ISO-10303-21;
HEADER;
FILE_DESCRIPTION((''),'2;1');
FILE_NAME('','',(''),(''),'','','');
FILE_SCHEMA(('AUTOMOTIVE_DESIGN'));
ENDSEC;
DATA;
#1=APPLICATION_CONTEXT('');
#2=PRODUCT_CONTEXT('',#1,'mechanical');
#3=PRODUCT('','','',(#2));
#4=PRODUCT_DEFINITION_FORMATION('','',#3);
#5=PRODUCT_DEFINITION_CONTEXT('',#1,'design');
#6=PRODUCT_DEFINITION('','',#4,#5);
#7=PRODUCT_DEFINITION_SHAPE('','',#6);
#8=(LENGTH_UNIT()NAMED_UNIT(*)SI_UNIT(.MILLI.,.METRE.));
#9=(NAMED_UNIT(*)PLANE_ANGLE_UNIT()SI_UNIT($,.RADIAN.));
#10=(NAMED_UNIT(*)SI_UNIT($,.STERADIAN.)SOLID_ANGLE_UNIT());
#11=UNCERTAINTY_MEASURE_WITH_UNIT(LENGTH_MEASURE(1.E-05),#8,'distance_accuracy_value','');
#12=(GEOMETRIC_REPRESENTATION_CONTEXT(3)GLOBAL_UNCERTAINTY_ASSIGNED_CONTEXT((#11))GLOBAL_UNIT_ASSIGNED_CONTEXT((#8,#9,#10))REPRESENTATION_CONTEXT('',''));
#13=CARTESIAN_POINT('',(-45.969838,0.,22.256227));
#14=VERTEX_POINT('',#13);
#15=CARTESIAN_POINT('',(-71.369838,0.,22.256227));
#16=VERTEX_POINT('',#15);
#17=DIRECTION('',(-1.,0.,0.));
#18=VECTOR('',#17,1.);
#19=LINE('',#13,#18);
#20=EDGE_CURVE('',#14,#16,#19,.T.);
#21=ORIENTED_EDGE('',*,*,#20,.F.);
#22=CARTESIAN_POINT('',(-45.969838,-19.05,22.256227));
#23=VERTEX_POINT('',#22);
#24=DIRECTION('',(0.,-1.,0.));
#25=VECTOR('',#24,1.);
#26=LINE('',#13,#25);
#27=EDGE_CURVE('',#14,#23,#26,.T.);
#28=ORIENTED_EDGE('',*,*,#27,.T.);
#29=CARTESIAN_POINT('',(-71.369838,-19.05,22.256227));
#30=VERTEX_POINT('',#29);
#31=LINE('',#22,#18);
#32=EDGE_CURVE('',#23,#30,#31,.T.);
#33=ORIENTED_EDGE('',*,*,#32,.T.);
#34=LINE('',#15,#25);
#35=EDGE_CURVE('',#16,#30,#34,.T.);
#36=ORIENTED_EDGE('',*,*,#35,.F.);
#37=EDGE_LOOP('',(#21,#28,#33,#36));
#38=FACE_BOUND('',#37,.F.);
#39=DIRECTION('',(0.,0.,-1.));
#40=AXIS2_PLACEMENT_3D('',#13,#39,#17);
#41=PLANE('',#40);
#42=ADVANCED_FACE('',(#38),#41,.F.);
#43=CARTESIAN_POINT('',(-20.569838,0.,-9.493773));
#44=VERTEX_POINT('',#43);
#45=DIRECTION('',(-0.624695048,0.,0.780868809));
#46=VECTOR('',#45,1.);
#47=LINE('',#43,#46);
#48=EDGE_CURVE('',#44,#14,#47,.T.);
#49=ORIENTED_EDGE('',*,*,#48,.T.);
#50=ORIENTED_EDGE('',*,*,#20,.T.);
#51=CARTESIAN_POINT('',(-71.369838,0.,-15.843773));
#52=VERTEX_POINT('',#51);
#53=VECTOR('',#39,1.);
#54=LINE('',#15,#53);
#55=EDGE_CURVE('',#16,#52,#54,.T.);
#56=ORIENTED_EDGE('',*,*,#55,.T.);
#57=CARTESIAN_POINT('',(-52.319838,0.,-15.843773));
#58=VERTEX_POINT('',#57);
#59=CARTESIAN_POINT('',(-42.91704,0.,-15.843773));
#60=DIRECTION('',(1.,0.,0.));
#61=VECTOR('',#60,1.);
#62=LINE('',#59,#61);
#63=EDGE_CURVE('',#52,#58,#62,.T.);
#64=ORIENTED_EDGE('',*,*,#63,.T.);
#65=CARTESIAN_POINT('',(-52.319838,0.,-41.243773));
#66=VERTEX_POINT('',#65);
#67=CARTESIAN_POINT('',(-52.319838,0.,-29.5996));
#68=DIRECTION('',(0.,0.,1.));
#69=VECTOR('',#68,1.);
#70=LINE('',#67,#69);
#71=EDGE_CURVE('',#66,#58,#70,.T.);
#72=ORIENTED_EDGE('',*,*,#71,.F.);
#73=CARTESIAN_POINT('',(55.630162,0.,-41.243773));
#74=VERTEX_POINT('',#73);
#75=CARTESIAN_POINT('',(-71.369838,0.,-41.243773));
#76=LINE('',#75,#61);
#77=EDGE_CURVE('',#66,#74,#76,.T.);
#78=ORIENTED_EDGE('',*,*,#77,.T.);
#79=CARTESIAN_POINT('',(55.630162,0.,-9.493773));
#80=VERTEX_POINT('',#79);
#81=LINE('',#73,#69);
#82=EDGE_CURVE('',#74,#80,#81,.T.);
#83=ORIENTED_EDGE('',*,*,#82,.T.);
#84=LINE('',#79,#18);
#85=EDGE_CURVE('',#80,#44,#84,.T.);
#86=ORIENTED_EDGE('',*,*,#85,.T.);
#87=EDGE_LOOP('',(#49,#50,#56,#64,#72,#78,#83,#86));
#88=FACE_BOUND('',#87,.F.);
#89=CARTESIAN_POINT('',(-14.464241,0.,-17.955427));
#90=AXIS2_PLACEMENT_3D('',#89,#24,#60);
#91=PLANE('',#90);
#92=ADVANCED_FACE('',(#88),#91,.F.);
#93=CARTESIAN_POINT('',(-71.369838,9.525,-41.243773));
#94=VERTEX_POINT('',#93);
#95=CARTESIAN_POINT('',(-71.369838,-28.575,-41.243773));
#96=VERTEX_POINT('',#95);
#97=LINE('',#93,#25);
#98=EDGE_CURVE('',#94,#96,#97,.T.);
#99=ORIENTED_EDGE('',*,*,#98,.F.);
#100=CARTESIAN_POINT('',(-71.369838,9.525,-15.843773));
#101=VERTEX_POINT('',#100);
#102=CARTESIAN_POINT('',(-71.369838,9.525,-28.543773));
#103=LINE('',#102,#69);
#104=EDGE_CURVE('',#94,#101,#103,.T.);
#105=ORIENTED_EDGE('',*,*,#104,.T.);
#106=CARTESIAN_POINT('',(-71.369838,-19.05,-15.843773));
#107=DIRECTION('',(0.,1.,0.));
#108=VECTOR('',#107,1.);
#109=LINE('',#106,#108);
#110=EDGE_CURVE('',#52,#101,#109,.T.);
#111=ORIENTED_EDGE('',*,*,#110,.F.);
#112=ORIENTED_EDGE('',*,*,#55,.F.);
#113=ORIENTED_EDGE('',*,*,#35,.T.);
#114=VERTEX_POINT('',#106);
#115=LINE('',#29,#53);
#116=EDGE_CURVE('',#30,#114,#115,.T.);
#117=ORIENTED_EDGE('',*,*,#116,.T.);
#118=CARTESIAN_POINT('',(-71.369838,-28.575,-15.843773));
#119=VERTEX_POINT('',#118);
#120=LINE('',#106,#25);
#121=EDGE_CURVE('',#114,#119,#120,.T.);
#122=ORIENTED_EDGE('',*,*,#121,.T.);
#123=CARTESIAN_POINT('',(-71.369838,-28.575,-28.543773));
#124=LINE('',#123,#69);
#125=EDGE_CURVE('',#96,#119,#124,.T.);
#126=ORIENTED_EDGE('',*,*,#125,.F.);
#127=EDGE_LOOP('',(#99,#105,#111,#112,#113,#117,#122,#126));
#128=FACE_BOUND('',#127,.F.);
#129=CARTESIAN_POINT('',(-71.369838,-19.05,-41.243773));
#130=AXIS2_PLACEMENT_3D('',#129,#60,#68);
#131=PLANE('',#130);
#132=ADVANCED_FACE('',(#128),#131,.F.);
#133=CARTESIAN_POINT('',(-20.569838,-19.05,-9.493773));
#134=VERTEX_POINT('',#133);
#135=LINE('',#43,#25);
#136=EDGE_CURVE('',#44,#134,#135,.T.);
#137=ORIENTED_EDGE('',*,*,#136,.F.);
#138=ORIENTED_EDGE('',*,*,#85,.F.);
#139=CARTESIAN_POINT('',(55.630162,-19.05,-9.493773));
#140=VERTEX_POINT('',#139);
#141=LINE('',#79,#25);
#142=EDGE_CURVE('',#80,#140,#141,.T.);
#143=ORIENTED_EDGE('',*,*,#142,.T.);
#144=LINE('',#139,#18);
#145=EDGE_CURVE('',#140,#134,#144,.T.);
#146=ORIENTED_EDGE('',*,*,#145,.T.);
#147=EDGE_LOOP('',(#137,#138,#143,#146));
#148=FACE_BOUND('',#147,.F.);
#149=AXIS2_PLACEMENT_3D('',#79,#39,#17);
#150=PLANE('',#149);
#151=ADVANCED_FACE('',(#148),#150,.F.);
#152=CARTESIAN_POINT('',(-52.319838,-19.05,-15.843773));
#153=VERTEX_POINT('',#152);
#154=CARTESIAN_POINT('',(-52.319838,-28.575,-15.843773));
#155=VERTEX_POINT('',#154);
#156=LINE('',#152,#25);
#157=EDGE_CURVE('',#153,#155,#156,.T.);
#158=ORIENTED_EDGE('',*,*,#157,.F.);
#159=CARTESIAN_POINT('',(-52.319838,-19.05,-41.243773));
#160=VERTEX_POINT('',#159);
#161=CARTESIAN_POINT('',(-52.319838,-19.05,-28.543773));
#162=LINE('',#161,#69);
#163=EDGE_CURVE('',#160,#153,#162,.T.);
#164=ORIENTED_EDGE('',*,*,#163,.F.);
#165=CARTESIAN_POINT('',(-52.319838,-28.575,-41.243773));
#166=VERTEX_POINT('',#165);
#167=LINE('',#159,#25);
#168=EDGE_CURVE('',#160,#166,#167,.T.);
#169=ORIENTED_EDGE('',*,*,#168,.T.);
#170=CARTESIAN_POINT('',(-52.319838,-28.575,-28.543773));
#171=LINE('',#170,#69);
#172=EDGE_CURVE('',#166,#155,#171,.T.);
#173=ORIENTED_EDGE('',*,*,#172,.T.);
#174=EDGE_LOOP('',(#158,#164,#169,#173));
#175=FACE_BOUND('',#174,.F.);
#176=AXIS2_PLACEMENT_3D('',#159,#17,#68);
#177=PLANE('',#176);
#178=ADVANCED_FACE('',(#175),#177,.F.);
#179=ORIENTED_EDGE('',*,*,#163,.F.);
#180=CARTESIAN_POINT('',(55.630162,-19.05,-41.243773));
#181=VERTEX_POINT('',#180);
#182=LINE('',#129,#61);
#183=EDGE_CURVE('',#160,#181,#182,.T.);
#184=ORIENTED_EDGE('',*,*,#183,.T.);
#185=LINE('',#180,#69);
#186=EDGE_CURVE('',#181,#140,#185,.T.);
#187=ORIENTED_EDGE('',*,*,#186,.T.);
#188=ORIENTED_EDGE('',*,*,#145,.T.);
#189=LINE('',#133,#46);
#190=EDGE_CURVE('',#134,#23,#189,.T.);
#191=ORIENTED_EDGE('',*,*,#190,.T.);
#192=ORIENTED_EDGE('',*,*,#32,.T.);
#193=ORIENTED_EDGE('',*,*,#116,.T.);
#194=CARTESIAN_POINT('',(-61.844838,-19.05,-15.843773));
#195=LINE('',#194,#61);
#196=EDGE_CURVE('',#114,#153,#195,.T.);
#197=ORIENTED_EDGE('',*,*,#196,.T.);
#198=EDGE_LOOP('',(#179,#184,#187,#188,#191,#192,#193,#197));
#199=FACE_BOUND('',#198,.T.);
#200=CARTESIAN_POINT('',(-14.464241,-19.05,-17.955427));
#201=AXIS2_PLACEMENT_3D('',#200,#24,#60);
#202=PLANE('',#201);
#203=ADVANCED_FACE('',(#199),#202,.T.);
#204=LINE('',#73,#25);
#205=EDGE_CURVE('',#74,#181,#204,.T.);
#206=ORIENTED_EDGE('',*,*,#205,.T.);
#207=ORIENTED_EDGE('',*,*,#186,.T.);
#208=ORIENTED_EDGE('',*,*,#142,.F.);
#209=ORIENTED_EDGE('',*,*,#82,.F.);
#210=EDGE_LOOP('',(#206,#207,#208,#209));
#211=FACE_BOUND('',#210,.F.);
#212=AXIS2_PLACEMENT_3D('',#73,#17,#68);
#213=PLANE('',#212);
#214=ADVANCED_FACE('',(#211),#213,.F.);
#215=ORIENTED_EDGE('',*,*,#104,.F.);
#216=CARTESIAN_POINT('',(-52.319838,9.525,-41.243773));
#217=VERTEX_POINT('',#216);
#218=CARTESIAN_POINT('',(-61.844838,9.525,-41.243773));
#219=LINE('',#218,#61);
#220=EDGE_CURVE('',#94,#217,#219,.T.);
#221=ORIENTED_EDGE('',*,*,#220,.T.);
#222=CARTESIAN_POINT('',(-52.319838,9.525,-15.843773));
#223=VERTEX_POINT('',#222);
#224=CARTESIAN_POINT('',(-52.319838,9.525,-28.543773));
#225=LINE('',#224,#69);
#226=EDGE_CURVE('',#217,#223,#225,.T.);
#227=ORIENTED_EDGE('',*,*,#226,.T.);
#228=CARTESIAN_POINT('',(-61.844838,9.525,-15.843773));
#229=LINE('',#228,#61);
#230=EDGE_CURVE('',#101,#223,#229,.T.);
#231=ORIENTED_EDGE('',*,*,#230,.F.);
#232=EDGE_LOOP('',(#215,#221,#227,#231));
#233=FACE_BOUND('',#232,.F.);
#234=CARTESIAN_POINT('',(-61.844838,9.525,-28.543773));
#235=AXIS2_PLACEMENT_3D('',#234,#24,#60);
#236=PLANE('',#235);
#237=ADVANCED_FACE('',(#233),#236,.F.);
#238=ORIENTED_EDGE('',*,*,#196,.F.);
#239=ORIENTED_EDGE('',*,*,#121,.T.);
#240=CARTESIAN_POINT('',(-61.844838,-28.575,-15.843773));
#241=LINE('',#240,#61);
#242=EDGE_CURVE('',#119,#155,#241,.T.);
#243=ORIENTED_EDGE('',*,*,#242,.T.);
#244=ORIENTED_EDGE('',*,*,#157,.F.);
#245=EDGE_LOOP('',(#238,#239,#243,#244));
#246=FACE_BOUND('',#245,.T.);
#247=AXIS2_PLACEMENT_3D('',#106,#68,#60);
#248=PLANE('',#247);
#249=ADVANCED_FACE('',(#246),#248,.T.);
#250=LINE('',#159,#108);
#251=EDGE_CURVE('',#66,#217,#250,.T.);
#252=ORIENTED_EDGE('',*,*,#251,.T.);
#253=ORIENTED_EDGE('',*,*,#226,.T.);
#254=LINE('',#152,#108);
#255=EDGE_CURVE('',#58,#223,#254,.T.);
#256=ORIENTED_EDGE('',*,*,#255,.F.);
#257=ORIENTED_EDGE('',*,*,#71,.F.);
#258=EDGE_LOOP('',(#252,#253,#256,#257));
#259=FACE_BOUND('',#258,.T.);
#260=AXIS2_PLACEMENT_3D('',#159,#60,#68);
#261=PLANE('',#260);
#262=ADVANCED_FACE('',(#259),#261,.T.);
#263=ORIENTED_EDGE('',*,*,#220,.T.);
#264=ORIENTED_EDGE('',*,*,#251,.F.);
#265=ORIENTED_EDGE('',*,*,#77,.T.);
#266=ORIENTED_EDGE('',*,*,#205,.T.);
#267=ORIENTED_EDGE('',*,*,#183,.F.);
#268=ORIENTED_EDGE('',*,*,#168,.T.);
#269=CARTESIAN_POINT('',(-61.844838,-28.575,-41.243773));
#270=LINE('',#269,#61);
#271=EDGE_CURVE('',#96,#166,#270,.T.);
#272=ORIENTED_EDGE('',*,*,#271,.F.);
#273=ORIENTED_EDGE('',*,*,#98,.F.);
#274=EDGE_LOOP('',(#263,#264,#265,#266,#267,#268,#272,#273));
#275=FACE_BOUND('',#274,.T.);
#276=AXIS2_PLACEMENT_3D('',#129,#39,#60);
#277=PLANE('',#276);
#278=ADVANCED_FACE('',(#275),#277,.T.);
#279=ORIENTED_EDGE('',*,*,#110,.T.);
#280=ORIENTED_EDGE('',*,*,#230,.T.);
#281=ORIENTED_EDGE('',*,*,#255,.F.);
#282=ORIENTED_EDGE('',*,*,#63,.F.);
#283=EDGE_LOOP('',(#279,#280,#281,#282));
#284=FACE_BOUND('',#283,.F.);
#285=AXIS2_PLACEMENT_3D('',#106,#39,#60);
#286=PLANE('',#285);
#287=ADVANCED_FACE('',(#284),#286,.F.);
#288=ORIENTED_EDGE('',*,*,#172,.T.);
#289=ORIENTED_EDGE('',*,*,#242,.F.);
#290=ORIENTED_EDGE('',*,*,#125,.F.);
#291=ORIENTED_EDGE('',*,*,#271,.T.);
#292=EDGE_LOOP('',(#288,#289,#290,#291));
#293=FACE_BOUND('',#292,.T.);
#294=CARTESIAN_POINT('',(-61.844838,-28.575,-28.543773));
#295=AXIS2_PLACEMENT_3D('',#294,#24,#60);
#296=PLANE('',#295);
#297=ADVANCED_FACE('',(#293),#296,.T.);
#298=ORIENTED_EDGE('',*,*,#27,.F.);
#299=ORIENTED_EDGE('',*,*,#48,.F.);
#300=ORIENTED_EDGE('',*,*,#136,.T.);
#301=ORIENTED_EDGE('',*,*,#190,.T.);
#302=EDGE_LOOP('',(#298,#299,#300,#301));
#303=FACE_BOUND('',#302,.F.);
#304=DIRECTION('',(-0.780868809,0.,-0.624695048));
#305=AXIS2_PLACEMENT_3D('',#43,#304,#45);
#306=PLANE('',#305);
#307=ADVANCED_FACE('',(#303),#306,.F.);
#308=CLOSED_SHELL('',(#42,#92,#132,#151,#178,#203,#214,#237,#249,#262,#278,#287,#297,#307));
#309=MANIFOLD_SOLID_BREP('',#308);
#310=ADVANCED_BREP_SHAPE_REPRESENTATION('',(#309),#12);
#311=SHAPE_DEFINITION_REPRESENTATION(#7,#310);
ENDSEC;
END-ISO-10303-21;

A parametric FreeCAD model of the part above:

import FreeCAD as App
import Part
import Sketcher
from FreeCAD import Vector
Q = App.Units.Quantity

doc = App.newDocument("Part")
params = doc.addObject("Spreadsheet::Sheet", "Params")
for row, (alias, value) in enumerate([
    ("sketch1_width", "5 in"),
    ("sketch1_width2", "3 in"),
    ("sketch1_width3", "1 in"),
    ("sketch1_height", "2.5 in"),
    ("sketch1_height2", "1.25 in"),
    ("pad1_length", "0.75 in"),
    ("sketch2_height", "1 in"),
    ("sketch2_width", "0.75 in"),
    ("pad2_length", "0.375 in"),
    ("pad2_length2", "1.125 in"),
], start=1):
    params.set(f"A{row}", alias)
    params.set(f"B{row}", "=" + value)
    params.setAlias(f"B{row}", alias)

body = doc.addObject("PartDesign::Body", "Body")

# Sketch on XZ plane
sketch1 = body.newObject("Sketcher::SketchObject", "Sketch")
sketch1.AttachmentSupport = (doc.getObject("XZ_Plane"), [""])
sketch1.MapMode = "FlatFace"
sketch1.addGeometry([
    Part.LineSegment(Vector(-71, 22, 0), Vector(-71, -41, 0)),  # 0
    Part.LineSegment(Vector(-71, -41, 0), Vector(56, -41, 0)),  # 1
    Part.LineSegment(Vector(56, -41, 0), Vector(56, -9, 0)),  # 2
    Part.LineSegment(Vector(56, -9, 0), Vector(-21, -9, 0)),  # 3
    Part.LineSegment(Vector(-21, -9, 0), Vector(-46, 22, 0)),  # 4
    Part.LineSegment(Vector(-46, 22, 0), Vector(-71, 22, 0)),  # 5
], False)
sketch1.addConstraint([
    Sketcher.Constraint("Coincident", 0, 2, 1, 1),
    Sketcher.Constraint("Coincident", 1, 2, 2, 1),
    Sketcher.Constraint("Coincident", 2, 2, 3, 1),
    Sketcher.Constraint("Coincident", 3, 2, 4, 1),
    Sketcher.Constraint("Coincident", 4, 2, 5, 1),
    Sketcher.Constraint("Coincident", 5, 2, 0, 1),
    Sketcher.Constraint("Vertical", 0),
    Sketcher.Constraint("Horizontal", 1),
    Sketcher.Constraint("Vertical", 2),
    Sketcher.Constraint("Horizontal", 3),
    Sketcher.Constraint("Horizontal", 5),
    Sketcher.Constraint("DistanceX", 1, 1, 1, 2, Q("5 in")),
    Sketcher.Constraint("DistanceX", 3, 2, 3, 1, Q("3 in")),
    Sketcher.Constraint("DistanceX", 5, 2, 5, 1, Q("1 in")),
    Sketcher.Constraint("DistanceY", 0, 2, 0, 1, Q("2.5 in")),
    Sketcher.Constraint("DistanceY", 2, 1, 2, 2, Q("1.25 in")),
    Sketcher.Constraint("DistanceX", 0, 2, -1, 1, 71.369838),
    Sketcher.Constraint("DistanceY", 0, 2, -1, 1, 41.243773),
])
sketch1.setExpression("Constraints[11]", "Params.sketch1_width")
sketch1.setExpression("Constraints[12]", "Params.sketch1_width2")
sketch1.setExpression("Constraints[13]", "Params.sketch1_width3")
sketch1.setExpression("Constraints[14]", "Params.sketch1_height")
sketch1.setExpression("Constraints[15]", "Params.sketch1_height2")
pad1 = body.newObject("PartDesign::Pad", "Pad")
pad1.Profile = sketch1
pad1.setExpression("Length", "Params.pad1_length")

# Sketch on XZ plane
sketch2 = body.newObject("Sketcher::SketchObject", "Sketch001")
sketch2.AttachmentSupport = (doc.getObject("XZ_Plane"), [""])
sketch2.MapMode = "FlatFace"
sketch2.AttachmentOffset = App.Placement(Vector(0, 0, 0.75 * 25.4), App.Rotation())
sketch2.addGeometry([
    Part.LineSegment(Vector(-71, -16, 0), Vector(-71, -41, 0)),
    Part.LineSegment(Vector(-71, -41, 0), Vector(-52, -41, 0)),
    Part.LineSegment(Vector(-52, -41, 0), Vector(-52, -16, 0)),
    Part.LineSegment(Vector(-52, -16, 0), Vector(-71, -16, 0)),
], False)
sketch2.addConstraint([
    Sketcher.Constraint("Coincident", 0, 2, 1, 1),
    Sketcher.Constraint("Coincident", 1, 2, 2, 1),
    Sketcher.Constraint("Coincident", 2, 2, 3, 1),
    Sketcher.Constraint("Coincident", 3, 2, 0, 1),
    Sketcher.Constraint("Vertical", 0),
    Sketcher.Constraint("Horizontal", 1),
    Sketcher.Constraint("Vertical", 2),
    Sketcher.Constraint("Horizontal", 3),
    Sketcher.Constraint("DistanceY", 0, 2, 0, 1, Q("1 in")),
    Sketcher.Constraint("DistanceX", 1, 1, 1, 2, Q("0.75 in")),
    Sketcher.Constraint("DistanceX", 0, 2, -1, 1, 71.369838),
    Sketcher.Constraint("DistanceY", 0, 2, -1, 1, 41.243773),
])
sketch2.setExpression("Constraints[8]", "Params.sketch2_height")
sketch2.setExpression("Constraints[9]", "Params.sketch2_width")
pad2 = body.newObject("PartDesign::Pad", "Pad001")
pad2.Profile = sketch2
pad2.Type = "TwoLengths"
pad2.setExpression("Length", "Params.pad2_length")
pad2.setExpression("Length2", "Params.pad2_length2")

doc.recompute()
